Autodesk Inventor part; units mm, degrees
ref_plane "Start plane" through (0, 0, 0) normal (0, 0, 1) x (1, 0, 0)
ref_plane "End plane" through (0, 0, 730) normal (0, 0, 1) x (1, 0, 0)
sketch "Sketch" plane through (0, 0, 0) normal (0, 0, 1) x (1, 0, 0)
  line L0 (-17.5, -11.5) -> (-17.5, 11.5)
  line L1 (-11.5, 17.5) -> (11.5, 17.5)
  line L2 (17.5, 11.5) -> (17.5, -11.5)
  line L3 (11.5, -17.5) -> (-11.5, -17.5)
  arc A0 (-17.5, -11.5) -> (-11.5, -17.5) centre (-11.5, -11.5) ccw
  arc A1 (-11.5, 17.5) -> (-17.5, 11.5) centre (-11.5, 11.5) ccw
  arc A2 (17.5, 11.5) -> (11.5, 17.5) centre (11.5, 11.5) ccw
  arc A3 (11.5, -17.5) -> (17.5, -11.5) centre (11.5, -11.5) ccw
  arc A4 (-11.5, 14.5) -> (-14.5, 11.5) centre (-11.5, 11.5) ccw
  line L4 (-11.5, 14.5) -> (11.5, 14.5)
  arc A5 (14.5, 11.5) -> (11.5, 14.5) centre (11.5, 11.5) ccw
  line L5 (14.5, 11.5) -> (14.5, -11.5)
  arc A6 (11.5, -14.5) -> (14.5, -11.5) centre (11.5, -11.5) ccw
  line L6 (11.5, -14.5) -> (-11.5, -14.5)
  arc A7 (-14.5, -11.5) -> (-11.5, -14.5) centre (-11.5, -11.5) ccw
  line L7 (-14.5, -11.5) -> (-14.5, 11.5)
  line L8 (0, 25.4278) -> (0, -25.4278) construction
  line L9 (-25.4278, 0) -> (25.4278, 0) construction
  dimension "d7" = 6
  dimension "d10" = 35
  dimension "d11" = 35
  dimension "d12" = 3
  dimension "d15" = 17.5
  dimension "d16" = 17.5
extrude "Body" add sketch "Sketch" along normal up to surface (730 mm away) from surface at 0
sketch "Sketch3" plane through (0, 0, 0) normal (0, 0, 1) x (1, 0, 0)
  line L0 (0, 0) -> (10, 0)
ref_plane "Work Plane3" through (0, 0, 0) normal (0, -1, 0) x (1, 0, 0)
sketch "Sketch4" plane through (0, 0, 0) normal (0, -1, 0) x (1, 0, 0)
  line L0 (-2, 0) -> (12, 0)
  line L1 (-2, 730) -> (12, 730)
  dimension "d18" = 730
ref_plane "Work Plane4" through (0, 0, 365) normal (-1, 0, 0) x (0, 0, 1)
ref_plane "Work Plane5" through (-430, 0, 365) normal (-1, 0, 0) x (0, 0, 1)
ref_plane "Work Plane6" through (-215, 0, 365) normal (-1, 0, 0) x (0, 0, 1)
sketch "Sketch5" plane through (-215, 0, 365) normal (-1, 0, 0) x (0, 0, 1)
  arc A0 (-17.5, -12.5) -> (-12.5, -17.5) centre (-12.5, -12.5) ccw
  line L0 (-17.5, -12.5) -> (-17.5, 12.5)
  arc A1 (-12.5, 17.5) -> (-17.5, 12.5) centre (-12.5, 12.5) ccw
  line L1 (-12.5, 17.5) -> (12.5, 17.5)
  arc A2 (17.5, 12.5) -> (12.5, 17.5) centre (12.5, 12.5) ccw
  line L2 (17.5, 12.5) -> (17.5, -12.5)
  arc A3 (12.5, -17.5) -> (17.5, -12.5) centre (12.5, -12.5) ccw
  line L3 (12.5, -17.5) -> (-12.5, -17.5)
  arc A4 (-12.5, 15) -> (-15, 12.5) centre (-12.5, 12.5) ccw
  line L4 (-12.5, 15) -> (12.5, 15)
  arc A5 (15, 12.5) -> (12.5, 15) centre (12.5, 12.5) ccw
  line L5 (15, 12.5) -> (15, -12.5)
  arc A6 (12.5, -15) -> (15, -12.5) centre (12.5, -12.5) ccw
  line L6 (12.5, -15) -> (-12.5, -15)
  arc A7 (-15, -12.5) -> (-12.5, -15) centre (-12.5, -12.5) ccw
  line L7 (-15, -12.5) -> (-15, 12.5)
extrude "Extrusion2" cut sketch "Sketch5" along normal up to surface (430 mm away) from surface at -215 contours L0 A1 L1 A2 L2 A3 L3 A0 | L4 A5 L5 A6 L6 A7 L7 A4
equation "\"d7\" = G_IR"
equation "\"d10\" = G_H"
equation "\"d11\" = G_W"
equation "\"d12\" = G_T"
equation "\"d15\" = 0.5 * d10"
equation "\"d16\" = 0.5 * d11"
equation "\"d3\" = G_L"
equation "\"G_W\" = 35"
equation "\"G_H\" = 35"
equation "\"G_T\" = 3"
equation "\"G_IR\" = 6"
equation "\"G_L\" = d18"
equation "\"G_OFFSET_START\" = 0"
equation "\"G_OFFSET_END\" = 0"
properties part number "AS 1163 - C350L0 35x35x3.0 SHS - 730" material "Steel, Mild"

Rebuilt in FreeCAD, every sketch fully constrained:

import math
import FreeCAD as App
import Part
import Sketcher

V = App.Vector
Q = App.Units.Quantity

doc = App.newDocument("Part")
body = doc.addObject("PartDesign::Body", "Body")

# Sketch on XY plane
sketch1 = doc.addObject("Sketcher::SketchObject", "Sketch")
body.addObject(sketch1)
sketch1.AttachmentSupport = (doc.XY_Plane, [""])
sketch1.MapMode = "FlatFace"
sketch1.addGeometry(Part.LineSegment(V(-17.5, 11.5, 0), V(-17.5, -11.5, 0)), False)
sketch1.addGeometry(Part.ArcOfCircle(Part.Circle(V(-11.5, -11.5, 0), V(0, 0, 1), 6), math.radians(180), math.radians(270)), False)
sketch1.addGeometry(Part.LineSegment(V(-11.5, -17.5, 0), V(11.5, -17.5, 0)), False)
sketch1.addGeometry(Part.ArcOfCircle(Part.Circle(V(11.5, -11.5, 0), V(0, 0, 1), 6), math.radians(-90), math.radians(0)), False)
sketch1.addGeometry(Part.LineSegment(V(17.5, -11.5, 0), V(17.5, 11.5, 0)), False)
sketch1.addGeometry(Part.ArcOfCircle(Part.Circle(V(11.5, 11.5, 0), V(0, 0, 1), 6), math.radians(0), math.radians(90)), False)
sketch1.addGeometry(Part.LineSegment(V(11.5, 17.5, 0), V(-11.5, 17.5, 0)), False)
sketch1.addGeometry(Part.ArcOfCircle(Part.Circle(V(-11.5, 11.5, 0), V(0, 0, 1), 6), math.radians(90), math.radians(180)), False)
sketch1.addGeometry(Part.ArcOfCircle(Part.Circle(V(-11.5, 11.5, 0), V(0, 0, 1), 3), math.radians(90), math.radians(180)), False)
sketch1.addGeometry(Part.LineSegment(V(-11.5, 14.5, 0), V(11.5, 14.5, 0)), False)
sketch1.addGeometry(Part.ArcOfCircle(Part.Circle(V(11.5, 11.5, 0), V(0, 0, 1), 3), math.radians(0), math.radians(90)), False)
sketch1.addGeometry(Part.LineSegment(V(14.5, 11.5, 0), V(14.5, -11.5, 0)), False)
sketch1.addGeometry(Part.ArcOfCircle(Part.Circle(V(11.5, -11.5, 0), V(0, 0, 1), 3), math.radians(-90), math.radians(0)), False)
sketch1.addGeometry(Part.LineSegment(V(11.5, -14.5, 0), V(-11.5, -14.5, 0)), False)
sketch1.addGeometry(Part.ArcOfCircle(Part.Circle(V(-11.5, -11.5, 0), V(0, 0, 1), 3), math.radians(180), math.radians(270)), False)
sketch1.addGeometry(Part.LineSegment(V(-14.5, -11.5, 0), V(-14.5, 11.5, 0)), False)
sketch1.addConstraint(Sketcher.Constraint("Tangent", 0, 2, 1, 1))
sketch1.addConstraint(Sketcher.Constraint("Tangent", 1, 2, 2, 1))
sketch1.addConstraint(Sketcher.Constraint("Tangent", 2, 2, 3, 1))
sketch1.addConstraint(Sketcher.Constraint("Tangent", 3, 2, 4, 1))
sketch1.addConstraint(Sketcher.Constraint("Tangent", 4, 2, 5, 1))
sketch1.addConstraint(Sketcher.Constraint("Tangent", 5, 2, 6, 1))
sketch1.addConstraint(Sketcher.Constraint("Tangent", 6, 2, 7, 1))
sketch1.addConstraint(Sketcher.Constraint("Tangent", 7, 2, 0, 1))
sketch1.addConstraint(Sketcher.Constraint("Tangent", 8, 1, 9, 1))
sketch1.addConstraint(Sketcher.Constraint("Tangent", 9, 2, 10, 2))
sketch1.addConstraint(Sketcher.Constraint("Tangent", 10, 1, 11, 1))
sketch1.addConstraint(Sketcher.Constraint("Tangent", 11, 2, 12, 2))
sketch1.addConstraint(Sketcher.Constraint("Tangent", 12, 1, 13, 1))
sketch1.addConstraint(Sketcher.Constraint("Tangent", 13, 2, 14, 2))
sketch1.addConstraint(Sketcher.Constraint("Tangent", 14, 1, 15, 1))
sketch1.addConstraint(Sketcher.Constraint("Tangent", 15, 2, 8, 2))
sketch1.addConstraint(Sketcher.Constraint("Vertical", 0))
sketch1.addConstraint(Sketcher.Constraint("Horizontal", 2))
sketch1.addConstraint(Sketcher.Constraint("Vertical", 4))
sketch1.addConstraint(Sketcher.Constraint("Horizontal", 6))
sketch1.addConstraint(Sketcher.Constraint("Horizontal", 9))
sketch1.addConstraint(Sketcher.Constraint("Vertical", 11))
sketch1.addConstraint(Sketcher.Constraint("Horizontal", 13))
sketch1.addConstraint(Sketcher.Constraint("Vertical", 15))
sketch1.addConstraint(Sketcher.Constraint("Coincident", 8, 3, 7, 3))
sketch1.addConstraint(Sketcher.Constraint("Coincident", 10, 3, 5, 3))
sketch1.addConstraint(Sketcher.Constraint("Coincident", 12, 3, 3, 3))
sketch1.addConstraint(Sketcher.Constraint("Equal", 1, 3))
sketch1.addConstraint(Sketcher.Constraint("Equal", 3, 5))
sketch1.addConstraint(Sketcher.Constraint("Equal", 5, 7))
sketch1.addConstraint(Sketcher.Constraint("Equal", 12, 14))
sketch1.addConstraint(Sketcher.Constraint("Symmetric", 1, 3, 5, 3, -1, 1))
sketch1.addConstraint(Sketcher.Constraint("Equal", 13, 0))
sketch1.addConstraint(Sketcher.Constraint("Radius", 1, Q("6 mm")))
sketch1.addConstraint(Sketcher.Constraint("Radius", 8, Q("3 mm")))
sketch1.addConstraint(Sketcher.Constraint("DistanceX", 0, 2, -1, 1, Q("17.5 mm")))
pad1 = doc.addObject("PartDesign::Pad", "Pad")
body.addObject(pad1)
pad1.Profile = sketch1
pad1.Length = 730

# Sketch on YZ plane
sketch2 = doc.addObject("Sketcher::SketchObject", "Sketch001")
body.addObject(sketch2)
sketch2.AttachmentSupport = (doc.YZ_Plane, [""])
sketch2.MapMode = "FlatFace"
sketch2.addGeometry(Part.LineSegment(V(12.5, 347.5, 0), V(-12.5, 347.5, 0)), False)
sketch2.addGeometry(Part.ArcOfCircle(Part.Circle(V(-12.5, 352.5, 0), V(0, 0, 1), 5), math.radians(180), math.radians(270)), False)
sketch2.addGeometry(Part.LineSegment(V(-17.5, 352.5, 0), V(-17.5, 377.5, 0)), False)
sketch2.addGeometry(Part.ArcOfCircle(Part.Circle(V(-12.5, 377.5, 0), V(0, 0, 1), 5), math.radians(90), math.radians(180)), False)
sketch2.addGeometry(Part.LineSegment(V(-12.5, 382.5, 0), V(12.5, 382.5, 0)), False)
sketch2.addGeometry(Part.ArcOfCircle(Part.Circle(V(12.5, 377.5, 0), V(0, 0, 1), 5), math.radians(0), math.radians(90)), False)
sketch2.addGeometry(Part.LineSegment(V(17.5, 377.5, 0), V(17.5, 352.5, 0)), False)
sketch2.addGeometry(Part.ArcOfCircle(Part.Circle(V(12.5, 352.5, 0), V(0, 0, 1), 5), math.radians(-90), math.radians(0)), False)
sketch2.addConstraint(Sketcher.Constraint("Tangent", 0, 2, 1, 2))
sketch2.addConstraint(Sketcher.Constraint("Tangent", 1, 1, 2, 1))
sketch2.addConstraint(Sketcher.Constraint("Tangent", 2, 2, 3, 2))
sketch2.addConstraint(Sketcher.Constraint("Tangent", 3, 1, 4, 1))
sketch2.addConstraint(Sketcher.Constraint("Tangent", 4, 2, 5, 2))
sketch2.addConstraint(Sketcher.Constraint("Tangent", 5, 1, 6, 1))
sketch2.addConstraint(Sketcher.Constraint("Tangent", 6, 2, 7, 2))
sketch2.addConstraint(Sketcher.Constraint("Tangent", 7, 1, 0, 1))
sketch2.addConstraint(Sketcher.Constraint("Horizontal", 0))
sketch2.addConstraint(Sketcher.Constraint("Vertical", 2))
sketch2.addConstraint(Sketcher.Constraint("Horizontal", 4))
sketch2.addConstraint(Sketcher.Constraint("Vertical", 6))
sketch2.addConstraint(Sketcher.Constraint("Equal", 1, 3))
sketch2.addConstraint(Sketcher.Constraint("Equal", 3, 5))
sketch2.addConstraint(Sketcher.Constraint("Equal", 5, 7))
sketch2.addConstraint(Sketcher.Constraint("Equal", 4, 2))
sketch2.addConstraint(Sketcher.Constraint("Radius", 1, Q("5 mm")))
sketch2.addConstraint(Sketcher.Constraint("DistanceX", 0, 2, 0, 1, Q("25 mm")))
sketch2.addConstraint(Sketcher.Constraint("DistanceX", 1, 3, -1, 1, Q("12.5 mm")))
sketch2.addConstraint(Sketcher.Constraint("DistanceY", -1, 1, 1, 3, Q("352.5 mm")))
pocket1 = doc.addObject("PartDesign::Pocket", "Pocket")
body.addObject(pocket1)
pocket1.Profile = sketch2
pocket1.Length = 430

doc.recompute()
